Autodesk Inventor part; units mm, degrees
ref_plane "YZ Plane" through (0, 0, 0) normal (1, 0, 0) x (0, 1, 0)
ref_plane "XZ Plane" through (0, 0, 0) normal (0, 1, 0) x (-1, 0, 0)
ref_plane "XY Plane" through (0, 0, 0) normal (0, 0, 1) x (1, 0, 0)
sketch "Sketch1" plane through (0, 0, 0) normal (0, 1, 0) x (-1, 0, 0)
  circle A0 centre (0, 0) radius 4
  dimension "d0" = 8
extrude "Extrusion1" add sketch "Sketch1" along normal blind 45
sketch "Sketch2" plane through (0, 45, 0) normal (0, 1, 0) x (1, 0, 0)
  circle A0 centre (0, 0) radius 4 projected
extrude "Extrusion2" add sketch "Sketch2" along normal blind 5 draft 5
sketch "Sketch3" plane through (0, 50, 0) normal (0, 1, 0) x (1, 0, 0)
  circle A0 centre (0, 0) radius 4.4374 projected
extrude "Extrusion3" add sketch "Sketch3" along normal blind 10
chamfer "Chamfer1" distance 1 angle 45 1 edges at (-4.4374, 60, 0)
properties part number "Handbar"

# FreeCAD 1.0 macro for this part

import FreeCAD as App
import Part
import Sketcher


def edges_at(feature, points):
    """Names of the edges that pass closest to the given points."""
    edges = feature.Shape.Edges
    near = lambda p: min(range(len(edges)), key=lambda i: edges[i].distToShape(Part.Vertex(*p))[0])
    return sorted({f"Edge{near(p) + 1}" for p in points})

doc = App.newDocument("Part")
params = doc.addObject("Spreadsheet::Sheet", "Params")
for row, (alias, value) in enumerate([
    ("sketch1_diameter", "8 mm"),
    ("pad1_length", "45 mm"),
    ("sketch2_diameter", "8 mm"),
    ("pad2_length", "5 mm"),
    ("pad2_taper", "5 deg"),
    ("pad3_length", "10 mm"),
    ("chamfer_size", "1 mm"),
], start=1):
    params.set(f"A{row}", alias)
    params.set(f"B{row}", "=" + value)
    params.setAlias(f"B{row}", alias)

body = doc.addObject("PartDesign::Body", "Body")

sketch1 = body.newObject("Sketcher::SketchObject", "Sketch")
sketch1.AttachmentSupport = (doc.getObject("XZ_Plane"), [""])
sketch1.MapMode = "FlatFace"
sketch1.addGeometry(Part.Circle(App.Vector(0, 0, 0), App.Vector(0, 0, 1), 4), False)
sketch1.addConstraint(Sketcher.Constraint("Coincident", 0, 3, -1, 1))
sketch1.addConstraint(Sketcher.Constraint("Diameter", 0, 8.0))
sketch1.setExpression("Constraints[1]", "Params.sketch1_diameter")
pad1 = body.newObject("PartDesign::Pad", "Pad")
pad1.Profile = sketch1
pad1.setExpression("Length", "Params.pad1_length")
pad1.Reversed = True

sketch2 = body.newObject("Sketcher::SketchObject", "Sketch001")
sketch2.AttachmentSupport = (doc.getObject("XZ_Plane"), [""])
sketch2.MapMode = "FlatFace"
sketch2.AttachmentOffset = App.Placement(App.Vector(0, 0, -45), App.Rotation())
sketch2.addGeometry(Part.Circle(App.Vector(0, 0, 0), App.Vector(0, 0, 1), 4), False)
sketch2.addConstraint(Sketcher.Constraint("Coincident", 0, 3, -1, 1))
sketch2.addConstraint(Sketcher.Constraint("Diameter", 0, 8.0))
sketch2.setExpression("Constraints[1]", "Params.sketch2_diameter")
pad2 = body.newObject("PartDesign::Pad", "Pad001")
pad2.Profile = sketch2
pad2.setExpression("Length", "Params.pad2_length")
pad2.Reversed = True
pad2.setExpression("TaperAngle", "Params.pad2_taper")

sketch3 = body.newObject("Sketcher::SketchObject", "Sketch002")
sketch3.AttachmentSupport = (doc.getObject("XZ_Plane"), [""])
sketch3.MapMode = "FlatFace"
sketch3.AttachmentOffset = App.Placement(App.Vector(0, 0, -50), App.Rotation())
sketch3.addGeometry(Part.Circle(App.Vector(0, 0, 0), App.Vector(0, 0, 1), 4.4), False)
sketch3.addConstraint(Sketcher.Constraint("Coincident", 0, 3, -1, 1))
sketch3.addConstraint(Sketcher.Constraint("Diameter", 0, 8.8748))
pad3 = body.newObject("PartDesign::Pad", "Pad002")
pad3.Profile = sketch3
pad3.setExpression("Length", "Params.pad3_length")
pad3.Reversed = True
doc.recompute()

chamfer = body.newObject("PartDesign::Chamfer", "Chamfer")
chamfer.Base = (pad3, edges_at(pad3, [(-4.437, 60, 0)]))
chamfer.setExpression("Size", "Params.chamfer_size")

doc.recompute()
